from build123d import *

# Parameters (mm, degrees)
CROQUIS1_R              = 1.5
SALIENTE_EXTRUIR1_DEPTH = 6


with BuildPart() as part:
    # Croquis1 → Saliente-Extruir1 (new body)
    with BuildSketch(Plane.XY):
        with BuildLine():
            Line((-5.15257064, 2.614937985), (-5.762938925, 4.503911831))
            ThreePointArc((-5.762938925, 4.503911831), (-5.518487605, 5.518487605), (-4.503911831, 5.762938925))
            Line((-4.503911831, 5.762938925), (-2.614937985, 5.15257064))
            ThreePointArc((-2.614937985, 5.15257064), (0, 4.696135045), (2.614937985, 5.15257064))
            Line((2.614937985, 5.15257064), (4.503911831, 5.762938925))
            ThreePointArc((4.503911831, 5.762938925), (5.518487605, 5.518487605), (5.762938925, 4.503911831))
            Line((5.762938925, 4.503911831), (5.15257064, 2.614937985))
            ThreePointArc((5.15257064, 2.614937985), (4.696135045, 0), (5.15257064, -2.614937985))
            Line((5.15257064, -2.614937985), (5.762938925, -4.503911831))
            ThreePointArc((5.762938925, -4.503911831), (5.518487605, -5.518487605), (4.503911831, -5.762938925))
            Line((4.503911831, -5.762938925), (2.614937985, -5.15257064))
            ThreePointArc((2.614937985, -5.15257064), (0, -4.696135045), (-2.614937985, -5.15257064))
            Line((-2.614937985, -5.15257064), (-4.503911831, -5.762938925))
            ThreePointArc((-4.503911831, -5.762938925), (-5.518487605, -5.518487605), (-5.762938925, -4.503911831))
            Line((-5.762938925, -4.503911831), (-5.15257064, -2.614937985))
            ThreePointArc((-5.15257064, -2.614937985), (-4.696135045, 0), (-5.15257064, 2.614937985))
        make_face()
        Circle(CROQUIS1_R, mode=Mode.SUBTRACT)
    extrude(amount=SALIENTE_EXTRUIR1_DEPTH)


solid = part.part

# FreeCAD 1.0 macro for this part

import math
import FreeCAD as App
import Part
import Sketcher
from FreeCAD import Vector

doc = App.newDocument("Part")
params = doc.addObject("Spreadsheet::Sheet", "Params")
for row, (alias, value) in enumerate([
    ("sketch1_diameter", "3 mm"),
    ("sketch1_radius", "1 mm"),
    ("pad1_length", "6 mm"),
], start=1):
    params.set(f"A{row}", alias)
    params.set(f"B{row}", "=" + value)
    params.setAlias(f"B{row}", alias)

body = doc.addObject("PartDesign::Body", "Body")

sketch1 = doc.addObject("Sketcher::SketchObject", "Sketch")
body.addObject(sketch1)
sketch1.AttachmentSupport = (doc.XY_Plane, [""])
sketch1.MapMode = "FlatFace"
sketch1.addGeometry([
    Part.LineSegment(Vector(-5.8, 4.5, 0), Vector(-5.2, 2.6, 0)),
    Part.ArcOfCircle(Part.Circle(Vector(-12.4, 0, 0), Vector(0, 0, 1), 7.7), math.radians(-20), math.radians(20)),
    Part.LineSegment(Vector(-5.2, -2.6, 0), Vector(-5.8, -4.5, 0)),
    Part.ArcOfCircle(Part.Circle(Vector(-4.8, -4.8, 0), Vector(0, 0, 1), 1), math.radians(162), math.radians(288)),
    Part.LineSegment(Vector(-4.5, -5.8, 0), Vector(-2.6, -5.2, 0)),
    Part.ArcOfCircle(Part.Circle(Vector(0, -12.4, 0), Vector(0, 0, 1), 7.7), math.radians(70), math.radians(110)),
    Part.LineSegment(Vector(2.6, -5.2, 0), Vector(4.5, -5.8, 0)),
    Part.ArcOfCircle(Part.Circle(Vector(4.8, -4.8, 0), Vector(0, 0, 1), 1), math.radians(-108), math.radians(18)),
    Part.LineSegment(Vector(5.8, -4.5, 0), Vector(5.2, -2.6, 0)),
    Part.ArcOfCircle(Part.Circle(Vector(12.4, 0, 0), Vector(0, 0, 1), 7.7), math.radians(160), math.radians(200)),
    Part.LineSegment(Vector(5.2, 2.6, 0), Vector(5.8, 4.5, 0)),
    Part.ArcOfCircle(Part.Circle(Vector(4.8, 4.8, 0), Vector(0, 0, 1), 1), math.radians(-18), math.radians(108)),
    Part.LineSegment(Vector(4.5, 5.8, 0), Vector(2.6, 5.2, 0)),
    Part.ArcOfCircle(Part.Circle(Vector(0, 12.4, 0), Vector(0, 0, 1), 7.7), math.radians(-110), math.radians(-70)),
    Part.LineSegment(Vector(-2.6, 5.2, 0), Vector(-4.5, 5.8, 0)),
    Part.ArcOfCircle(Part.Circle(Vector(-4.8, 4.8, 0), Vector(0, 0, 1), 1), math.radians(72), math.radians(198)),
    Part.Circle(Vector(0, 0, 0), Vector(0, 0, 1), 1.5),
], False)
sketch1.addConstraint([
    Sketcher.Constraint("Coincident", 0, 2, 1, 2),
    Sketcher.Constraint("Coincident", 1, 1, 2, 1),
    Sketcher.Constraint("Tangent", 2, 2, 3, 1),
    Sketcher.Constraint("Tangent", 3, 2, 4, 1),
    Sketcher.Constraint("Coincident", 4, 2, 5, 2),
    Sketcher.Constraint("Coincident", 5, 1, 6, 1),
    Sketcher.Constraint("Tangent", 6, 2, 7, 1),
    Sketcher.Constraint("Tangent", 7, 2, 8, 1),
    Sketcher.Constraint("Coincident", 8, 2, 9, 2),
    Sketcher.Constraint("Coincident", 9, 1, 10, 1),
    Sketcher.Constraint("Tangent", 10, 2, 11, 1),
    Sketcher.Constraint("Tangent", 11, 2, 12, 1),
    Sketcher.Constraint("Coincident", 12, 2, 13, 2),
    Sketcher.Constraint("Coincident", 13, 1, 14, 1),
    Sketcher.Constraint("Tangent", 14, 2, 15, 1),
    Sketcher.Constraint("Tangent", 15, 2, 0, 1),
    Sketcher.Constraint("Coincident", 16, 3, -1, 1),
    Sketcher.Constraint("Equal", 1, 5),
    Sketcher.Constraint("Equal", 3, 7),
    Sketcher.Constraint("Equal", 5, 9),
    Sketcher.Constraint("Equal", 7, 11),
    Sketcher.Constraint("Equal", 9, 13),
    Sketcher.Constraint("Equal", 11, 15),
    Sketcher.Constraint("Symmetric", 1, 3, 9, 3, -1, 1),
    Sketcher.Constraint("Symmetric", 3, 3, 11, 3, -1, 1),
    Sketcher.Constraint("Symmetric", 5, 3, 13, 3, -1, 1),
    Sketcher.Constraint("Symmetric", 7, 3, 15, 3, -1, 1),
    Sketcher.Constraint("Symmetric", 3, 3, 7, 3, -2),
    Sketcher.Constraint("Symmetric", 4, 2, 5, 1, -2),
    Sketcher.Constraint("Symmetric", 1, 1, 8, 2, -2),
    Sketcher.Constraint("Perpendicular", 0, 4),
    Sketcher.Constraint("Perpendicular", 2, 6),
    Sketcher.Constraint("Perpendicular", 6, 10),
    Sketcher.Constraint("Perpendicular", 8, 12),
    Sketcher.Constraint("Perpendicular", 10, 14),
    Sketcher.Constraint("Equal", 2, 4),
    Sketcher.Constraint("Diameter", 16, 3.0),
    Sketcher.Constraint("Radius", 3, 1.0),
    Sketcher.Constraint("Radius", 1, 7.718761),
    Sketcher.Constraint("DistanceY", 3, 2, 1, 1, 3.148001),
    Sketcher.Constraint("DistanceX", 3, 3, -1, 1, 4.811381),
    Sketcher.Constraint("DistanceY", 3, 3, -1, 1, 4.811381),
    Sketcher.Constraint("DistanceX", 0, 2, -1, 1, 5.152571),
])
sketch1.setExpression("Constraints[36]", "Params.sketch1_diameter")
sketch1.setExpression("Constraints[37]", "Params.sketch1_radius")
pad1 = doc.addObject("PartDesign::Pad", "Pad")
body.addObject(pad1)
pad1.Profile = sketch1
pad1.setExpression("Length", "Params.pad1_length")

doc.recompute()
